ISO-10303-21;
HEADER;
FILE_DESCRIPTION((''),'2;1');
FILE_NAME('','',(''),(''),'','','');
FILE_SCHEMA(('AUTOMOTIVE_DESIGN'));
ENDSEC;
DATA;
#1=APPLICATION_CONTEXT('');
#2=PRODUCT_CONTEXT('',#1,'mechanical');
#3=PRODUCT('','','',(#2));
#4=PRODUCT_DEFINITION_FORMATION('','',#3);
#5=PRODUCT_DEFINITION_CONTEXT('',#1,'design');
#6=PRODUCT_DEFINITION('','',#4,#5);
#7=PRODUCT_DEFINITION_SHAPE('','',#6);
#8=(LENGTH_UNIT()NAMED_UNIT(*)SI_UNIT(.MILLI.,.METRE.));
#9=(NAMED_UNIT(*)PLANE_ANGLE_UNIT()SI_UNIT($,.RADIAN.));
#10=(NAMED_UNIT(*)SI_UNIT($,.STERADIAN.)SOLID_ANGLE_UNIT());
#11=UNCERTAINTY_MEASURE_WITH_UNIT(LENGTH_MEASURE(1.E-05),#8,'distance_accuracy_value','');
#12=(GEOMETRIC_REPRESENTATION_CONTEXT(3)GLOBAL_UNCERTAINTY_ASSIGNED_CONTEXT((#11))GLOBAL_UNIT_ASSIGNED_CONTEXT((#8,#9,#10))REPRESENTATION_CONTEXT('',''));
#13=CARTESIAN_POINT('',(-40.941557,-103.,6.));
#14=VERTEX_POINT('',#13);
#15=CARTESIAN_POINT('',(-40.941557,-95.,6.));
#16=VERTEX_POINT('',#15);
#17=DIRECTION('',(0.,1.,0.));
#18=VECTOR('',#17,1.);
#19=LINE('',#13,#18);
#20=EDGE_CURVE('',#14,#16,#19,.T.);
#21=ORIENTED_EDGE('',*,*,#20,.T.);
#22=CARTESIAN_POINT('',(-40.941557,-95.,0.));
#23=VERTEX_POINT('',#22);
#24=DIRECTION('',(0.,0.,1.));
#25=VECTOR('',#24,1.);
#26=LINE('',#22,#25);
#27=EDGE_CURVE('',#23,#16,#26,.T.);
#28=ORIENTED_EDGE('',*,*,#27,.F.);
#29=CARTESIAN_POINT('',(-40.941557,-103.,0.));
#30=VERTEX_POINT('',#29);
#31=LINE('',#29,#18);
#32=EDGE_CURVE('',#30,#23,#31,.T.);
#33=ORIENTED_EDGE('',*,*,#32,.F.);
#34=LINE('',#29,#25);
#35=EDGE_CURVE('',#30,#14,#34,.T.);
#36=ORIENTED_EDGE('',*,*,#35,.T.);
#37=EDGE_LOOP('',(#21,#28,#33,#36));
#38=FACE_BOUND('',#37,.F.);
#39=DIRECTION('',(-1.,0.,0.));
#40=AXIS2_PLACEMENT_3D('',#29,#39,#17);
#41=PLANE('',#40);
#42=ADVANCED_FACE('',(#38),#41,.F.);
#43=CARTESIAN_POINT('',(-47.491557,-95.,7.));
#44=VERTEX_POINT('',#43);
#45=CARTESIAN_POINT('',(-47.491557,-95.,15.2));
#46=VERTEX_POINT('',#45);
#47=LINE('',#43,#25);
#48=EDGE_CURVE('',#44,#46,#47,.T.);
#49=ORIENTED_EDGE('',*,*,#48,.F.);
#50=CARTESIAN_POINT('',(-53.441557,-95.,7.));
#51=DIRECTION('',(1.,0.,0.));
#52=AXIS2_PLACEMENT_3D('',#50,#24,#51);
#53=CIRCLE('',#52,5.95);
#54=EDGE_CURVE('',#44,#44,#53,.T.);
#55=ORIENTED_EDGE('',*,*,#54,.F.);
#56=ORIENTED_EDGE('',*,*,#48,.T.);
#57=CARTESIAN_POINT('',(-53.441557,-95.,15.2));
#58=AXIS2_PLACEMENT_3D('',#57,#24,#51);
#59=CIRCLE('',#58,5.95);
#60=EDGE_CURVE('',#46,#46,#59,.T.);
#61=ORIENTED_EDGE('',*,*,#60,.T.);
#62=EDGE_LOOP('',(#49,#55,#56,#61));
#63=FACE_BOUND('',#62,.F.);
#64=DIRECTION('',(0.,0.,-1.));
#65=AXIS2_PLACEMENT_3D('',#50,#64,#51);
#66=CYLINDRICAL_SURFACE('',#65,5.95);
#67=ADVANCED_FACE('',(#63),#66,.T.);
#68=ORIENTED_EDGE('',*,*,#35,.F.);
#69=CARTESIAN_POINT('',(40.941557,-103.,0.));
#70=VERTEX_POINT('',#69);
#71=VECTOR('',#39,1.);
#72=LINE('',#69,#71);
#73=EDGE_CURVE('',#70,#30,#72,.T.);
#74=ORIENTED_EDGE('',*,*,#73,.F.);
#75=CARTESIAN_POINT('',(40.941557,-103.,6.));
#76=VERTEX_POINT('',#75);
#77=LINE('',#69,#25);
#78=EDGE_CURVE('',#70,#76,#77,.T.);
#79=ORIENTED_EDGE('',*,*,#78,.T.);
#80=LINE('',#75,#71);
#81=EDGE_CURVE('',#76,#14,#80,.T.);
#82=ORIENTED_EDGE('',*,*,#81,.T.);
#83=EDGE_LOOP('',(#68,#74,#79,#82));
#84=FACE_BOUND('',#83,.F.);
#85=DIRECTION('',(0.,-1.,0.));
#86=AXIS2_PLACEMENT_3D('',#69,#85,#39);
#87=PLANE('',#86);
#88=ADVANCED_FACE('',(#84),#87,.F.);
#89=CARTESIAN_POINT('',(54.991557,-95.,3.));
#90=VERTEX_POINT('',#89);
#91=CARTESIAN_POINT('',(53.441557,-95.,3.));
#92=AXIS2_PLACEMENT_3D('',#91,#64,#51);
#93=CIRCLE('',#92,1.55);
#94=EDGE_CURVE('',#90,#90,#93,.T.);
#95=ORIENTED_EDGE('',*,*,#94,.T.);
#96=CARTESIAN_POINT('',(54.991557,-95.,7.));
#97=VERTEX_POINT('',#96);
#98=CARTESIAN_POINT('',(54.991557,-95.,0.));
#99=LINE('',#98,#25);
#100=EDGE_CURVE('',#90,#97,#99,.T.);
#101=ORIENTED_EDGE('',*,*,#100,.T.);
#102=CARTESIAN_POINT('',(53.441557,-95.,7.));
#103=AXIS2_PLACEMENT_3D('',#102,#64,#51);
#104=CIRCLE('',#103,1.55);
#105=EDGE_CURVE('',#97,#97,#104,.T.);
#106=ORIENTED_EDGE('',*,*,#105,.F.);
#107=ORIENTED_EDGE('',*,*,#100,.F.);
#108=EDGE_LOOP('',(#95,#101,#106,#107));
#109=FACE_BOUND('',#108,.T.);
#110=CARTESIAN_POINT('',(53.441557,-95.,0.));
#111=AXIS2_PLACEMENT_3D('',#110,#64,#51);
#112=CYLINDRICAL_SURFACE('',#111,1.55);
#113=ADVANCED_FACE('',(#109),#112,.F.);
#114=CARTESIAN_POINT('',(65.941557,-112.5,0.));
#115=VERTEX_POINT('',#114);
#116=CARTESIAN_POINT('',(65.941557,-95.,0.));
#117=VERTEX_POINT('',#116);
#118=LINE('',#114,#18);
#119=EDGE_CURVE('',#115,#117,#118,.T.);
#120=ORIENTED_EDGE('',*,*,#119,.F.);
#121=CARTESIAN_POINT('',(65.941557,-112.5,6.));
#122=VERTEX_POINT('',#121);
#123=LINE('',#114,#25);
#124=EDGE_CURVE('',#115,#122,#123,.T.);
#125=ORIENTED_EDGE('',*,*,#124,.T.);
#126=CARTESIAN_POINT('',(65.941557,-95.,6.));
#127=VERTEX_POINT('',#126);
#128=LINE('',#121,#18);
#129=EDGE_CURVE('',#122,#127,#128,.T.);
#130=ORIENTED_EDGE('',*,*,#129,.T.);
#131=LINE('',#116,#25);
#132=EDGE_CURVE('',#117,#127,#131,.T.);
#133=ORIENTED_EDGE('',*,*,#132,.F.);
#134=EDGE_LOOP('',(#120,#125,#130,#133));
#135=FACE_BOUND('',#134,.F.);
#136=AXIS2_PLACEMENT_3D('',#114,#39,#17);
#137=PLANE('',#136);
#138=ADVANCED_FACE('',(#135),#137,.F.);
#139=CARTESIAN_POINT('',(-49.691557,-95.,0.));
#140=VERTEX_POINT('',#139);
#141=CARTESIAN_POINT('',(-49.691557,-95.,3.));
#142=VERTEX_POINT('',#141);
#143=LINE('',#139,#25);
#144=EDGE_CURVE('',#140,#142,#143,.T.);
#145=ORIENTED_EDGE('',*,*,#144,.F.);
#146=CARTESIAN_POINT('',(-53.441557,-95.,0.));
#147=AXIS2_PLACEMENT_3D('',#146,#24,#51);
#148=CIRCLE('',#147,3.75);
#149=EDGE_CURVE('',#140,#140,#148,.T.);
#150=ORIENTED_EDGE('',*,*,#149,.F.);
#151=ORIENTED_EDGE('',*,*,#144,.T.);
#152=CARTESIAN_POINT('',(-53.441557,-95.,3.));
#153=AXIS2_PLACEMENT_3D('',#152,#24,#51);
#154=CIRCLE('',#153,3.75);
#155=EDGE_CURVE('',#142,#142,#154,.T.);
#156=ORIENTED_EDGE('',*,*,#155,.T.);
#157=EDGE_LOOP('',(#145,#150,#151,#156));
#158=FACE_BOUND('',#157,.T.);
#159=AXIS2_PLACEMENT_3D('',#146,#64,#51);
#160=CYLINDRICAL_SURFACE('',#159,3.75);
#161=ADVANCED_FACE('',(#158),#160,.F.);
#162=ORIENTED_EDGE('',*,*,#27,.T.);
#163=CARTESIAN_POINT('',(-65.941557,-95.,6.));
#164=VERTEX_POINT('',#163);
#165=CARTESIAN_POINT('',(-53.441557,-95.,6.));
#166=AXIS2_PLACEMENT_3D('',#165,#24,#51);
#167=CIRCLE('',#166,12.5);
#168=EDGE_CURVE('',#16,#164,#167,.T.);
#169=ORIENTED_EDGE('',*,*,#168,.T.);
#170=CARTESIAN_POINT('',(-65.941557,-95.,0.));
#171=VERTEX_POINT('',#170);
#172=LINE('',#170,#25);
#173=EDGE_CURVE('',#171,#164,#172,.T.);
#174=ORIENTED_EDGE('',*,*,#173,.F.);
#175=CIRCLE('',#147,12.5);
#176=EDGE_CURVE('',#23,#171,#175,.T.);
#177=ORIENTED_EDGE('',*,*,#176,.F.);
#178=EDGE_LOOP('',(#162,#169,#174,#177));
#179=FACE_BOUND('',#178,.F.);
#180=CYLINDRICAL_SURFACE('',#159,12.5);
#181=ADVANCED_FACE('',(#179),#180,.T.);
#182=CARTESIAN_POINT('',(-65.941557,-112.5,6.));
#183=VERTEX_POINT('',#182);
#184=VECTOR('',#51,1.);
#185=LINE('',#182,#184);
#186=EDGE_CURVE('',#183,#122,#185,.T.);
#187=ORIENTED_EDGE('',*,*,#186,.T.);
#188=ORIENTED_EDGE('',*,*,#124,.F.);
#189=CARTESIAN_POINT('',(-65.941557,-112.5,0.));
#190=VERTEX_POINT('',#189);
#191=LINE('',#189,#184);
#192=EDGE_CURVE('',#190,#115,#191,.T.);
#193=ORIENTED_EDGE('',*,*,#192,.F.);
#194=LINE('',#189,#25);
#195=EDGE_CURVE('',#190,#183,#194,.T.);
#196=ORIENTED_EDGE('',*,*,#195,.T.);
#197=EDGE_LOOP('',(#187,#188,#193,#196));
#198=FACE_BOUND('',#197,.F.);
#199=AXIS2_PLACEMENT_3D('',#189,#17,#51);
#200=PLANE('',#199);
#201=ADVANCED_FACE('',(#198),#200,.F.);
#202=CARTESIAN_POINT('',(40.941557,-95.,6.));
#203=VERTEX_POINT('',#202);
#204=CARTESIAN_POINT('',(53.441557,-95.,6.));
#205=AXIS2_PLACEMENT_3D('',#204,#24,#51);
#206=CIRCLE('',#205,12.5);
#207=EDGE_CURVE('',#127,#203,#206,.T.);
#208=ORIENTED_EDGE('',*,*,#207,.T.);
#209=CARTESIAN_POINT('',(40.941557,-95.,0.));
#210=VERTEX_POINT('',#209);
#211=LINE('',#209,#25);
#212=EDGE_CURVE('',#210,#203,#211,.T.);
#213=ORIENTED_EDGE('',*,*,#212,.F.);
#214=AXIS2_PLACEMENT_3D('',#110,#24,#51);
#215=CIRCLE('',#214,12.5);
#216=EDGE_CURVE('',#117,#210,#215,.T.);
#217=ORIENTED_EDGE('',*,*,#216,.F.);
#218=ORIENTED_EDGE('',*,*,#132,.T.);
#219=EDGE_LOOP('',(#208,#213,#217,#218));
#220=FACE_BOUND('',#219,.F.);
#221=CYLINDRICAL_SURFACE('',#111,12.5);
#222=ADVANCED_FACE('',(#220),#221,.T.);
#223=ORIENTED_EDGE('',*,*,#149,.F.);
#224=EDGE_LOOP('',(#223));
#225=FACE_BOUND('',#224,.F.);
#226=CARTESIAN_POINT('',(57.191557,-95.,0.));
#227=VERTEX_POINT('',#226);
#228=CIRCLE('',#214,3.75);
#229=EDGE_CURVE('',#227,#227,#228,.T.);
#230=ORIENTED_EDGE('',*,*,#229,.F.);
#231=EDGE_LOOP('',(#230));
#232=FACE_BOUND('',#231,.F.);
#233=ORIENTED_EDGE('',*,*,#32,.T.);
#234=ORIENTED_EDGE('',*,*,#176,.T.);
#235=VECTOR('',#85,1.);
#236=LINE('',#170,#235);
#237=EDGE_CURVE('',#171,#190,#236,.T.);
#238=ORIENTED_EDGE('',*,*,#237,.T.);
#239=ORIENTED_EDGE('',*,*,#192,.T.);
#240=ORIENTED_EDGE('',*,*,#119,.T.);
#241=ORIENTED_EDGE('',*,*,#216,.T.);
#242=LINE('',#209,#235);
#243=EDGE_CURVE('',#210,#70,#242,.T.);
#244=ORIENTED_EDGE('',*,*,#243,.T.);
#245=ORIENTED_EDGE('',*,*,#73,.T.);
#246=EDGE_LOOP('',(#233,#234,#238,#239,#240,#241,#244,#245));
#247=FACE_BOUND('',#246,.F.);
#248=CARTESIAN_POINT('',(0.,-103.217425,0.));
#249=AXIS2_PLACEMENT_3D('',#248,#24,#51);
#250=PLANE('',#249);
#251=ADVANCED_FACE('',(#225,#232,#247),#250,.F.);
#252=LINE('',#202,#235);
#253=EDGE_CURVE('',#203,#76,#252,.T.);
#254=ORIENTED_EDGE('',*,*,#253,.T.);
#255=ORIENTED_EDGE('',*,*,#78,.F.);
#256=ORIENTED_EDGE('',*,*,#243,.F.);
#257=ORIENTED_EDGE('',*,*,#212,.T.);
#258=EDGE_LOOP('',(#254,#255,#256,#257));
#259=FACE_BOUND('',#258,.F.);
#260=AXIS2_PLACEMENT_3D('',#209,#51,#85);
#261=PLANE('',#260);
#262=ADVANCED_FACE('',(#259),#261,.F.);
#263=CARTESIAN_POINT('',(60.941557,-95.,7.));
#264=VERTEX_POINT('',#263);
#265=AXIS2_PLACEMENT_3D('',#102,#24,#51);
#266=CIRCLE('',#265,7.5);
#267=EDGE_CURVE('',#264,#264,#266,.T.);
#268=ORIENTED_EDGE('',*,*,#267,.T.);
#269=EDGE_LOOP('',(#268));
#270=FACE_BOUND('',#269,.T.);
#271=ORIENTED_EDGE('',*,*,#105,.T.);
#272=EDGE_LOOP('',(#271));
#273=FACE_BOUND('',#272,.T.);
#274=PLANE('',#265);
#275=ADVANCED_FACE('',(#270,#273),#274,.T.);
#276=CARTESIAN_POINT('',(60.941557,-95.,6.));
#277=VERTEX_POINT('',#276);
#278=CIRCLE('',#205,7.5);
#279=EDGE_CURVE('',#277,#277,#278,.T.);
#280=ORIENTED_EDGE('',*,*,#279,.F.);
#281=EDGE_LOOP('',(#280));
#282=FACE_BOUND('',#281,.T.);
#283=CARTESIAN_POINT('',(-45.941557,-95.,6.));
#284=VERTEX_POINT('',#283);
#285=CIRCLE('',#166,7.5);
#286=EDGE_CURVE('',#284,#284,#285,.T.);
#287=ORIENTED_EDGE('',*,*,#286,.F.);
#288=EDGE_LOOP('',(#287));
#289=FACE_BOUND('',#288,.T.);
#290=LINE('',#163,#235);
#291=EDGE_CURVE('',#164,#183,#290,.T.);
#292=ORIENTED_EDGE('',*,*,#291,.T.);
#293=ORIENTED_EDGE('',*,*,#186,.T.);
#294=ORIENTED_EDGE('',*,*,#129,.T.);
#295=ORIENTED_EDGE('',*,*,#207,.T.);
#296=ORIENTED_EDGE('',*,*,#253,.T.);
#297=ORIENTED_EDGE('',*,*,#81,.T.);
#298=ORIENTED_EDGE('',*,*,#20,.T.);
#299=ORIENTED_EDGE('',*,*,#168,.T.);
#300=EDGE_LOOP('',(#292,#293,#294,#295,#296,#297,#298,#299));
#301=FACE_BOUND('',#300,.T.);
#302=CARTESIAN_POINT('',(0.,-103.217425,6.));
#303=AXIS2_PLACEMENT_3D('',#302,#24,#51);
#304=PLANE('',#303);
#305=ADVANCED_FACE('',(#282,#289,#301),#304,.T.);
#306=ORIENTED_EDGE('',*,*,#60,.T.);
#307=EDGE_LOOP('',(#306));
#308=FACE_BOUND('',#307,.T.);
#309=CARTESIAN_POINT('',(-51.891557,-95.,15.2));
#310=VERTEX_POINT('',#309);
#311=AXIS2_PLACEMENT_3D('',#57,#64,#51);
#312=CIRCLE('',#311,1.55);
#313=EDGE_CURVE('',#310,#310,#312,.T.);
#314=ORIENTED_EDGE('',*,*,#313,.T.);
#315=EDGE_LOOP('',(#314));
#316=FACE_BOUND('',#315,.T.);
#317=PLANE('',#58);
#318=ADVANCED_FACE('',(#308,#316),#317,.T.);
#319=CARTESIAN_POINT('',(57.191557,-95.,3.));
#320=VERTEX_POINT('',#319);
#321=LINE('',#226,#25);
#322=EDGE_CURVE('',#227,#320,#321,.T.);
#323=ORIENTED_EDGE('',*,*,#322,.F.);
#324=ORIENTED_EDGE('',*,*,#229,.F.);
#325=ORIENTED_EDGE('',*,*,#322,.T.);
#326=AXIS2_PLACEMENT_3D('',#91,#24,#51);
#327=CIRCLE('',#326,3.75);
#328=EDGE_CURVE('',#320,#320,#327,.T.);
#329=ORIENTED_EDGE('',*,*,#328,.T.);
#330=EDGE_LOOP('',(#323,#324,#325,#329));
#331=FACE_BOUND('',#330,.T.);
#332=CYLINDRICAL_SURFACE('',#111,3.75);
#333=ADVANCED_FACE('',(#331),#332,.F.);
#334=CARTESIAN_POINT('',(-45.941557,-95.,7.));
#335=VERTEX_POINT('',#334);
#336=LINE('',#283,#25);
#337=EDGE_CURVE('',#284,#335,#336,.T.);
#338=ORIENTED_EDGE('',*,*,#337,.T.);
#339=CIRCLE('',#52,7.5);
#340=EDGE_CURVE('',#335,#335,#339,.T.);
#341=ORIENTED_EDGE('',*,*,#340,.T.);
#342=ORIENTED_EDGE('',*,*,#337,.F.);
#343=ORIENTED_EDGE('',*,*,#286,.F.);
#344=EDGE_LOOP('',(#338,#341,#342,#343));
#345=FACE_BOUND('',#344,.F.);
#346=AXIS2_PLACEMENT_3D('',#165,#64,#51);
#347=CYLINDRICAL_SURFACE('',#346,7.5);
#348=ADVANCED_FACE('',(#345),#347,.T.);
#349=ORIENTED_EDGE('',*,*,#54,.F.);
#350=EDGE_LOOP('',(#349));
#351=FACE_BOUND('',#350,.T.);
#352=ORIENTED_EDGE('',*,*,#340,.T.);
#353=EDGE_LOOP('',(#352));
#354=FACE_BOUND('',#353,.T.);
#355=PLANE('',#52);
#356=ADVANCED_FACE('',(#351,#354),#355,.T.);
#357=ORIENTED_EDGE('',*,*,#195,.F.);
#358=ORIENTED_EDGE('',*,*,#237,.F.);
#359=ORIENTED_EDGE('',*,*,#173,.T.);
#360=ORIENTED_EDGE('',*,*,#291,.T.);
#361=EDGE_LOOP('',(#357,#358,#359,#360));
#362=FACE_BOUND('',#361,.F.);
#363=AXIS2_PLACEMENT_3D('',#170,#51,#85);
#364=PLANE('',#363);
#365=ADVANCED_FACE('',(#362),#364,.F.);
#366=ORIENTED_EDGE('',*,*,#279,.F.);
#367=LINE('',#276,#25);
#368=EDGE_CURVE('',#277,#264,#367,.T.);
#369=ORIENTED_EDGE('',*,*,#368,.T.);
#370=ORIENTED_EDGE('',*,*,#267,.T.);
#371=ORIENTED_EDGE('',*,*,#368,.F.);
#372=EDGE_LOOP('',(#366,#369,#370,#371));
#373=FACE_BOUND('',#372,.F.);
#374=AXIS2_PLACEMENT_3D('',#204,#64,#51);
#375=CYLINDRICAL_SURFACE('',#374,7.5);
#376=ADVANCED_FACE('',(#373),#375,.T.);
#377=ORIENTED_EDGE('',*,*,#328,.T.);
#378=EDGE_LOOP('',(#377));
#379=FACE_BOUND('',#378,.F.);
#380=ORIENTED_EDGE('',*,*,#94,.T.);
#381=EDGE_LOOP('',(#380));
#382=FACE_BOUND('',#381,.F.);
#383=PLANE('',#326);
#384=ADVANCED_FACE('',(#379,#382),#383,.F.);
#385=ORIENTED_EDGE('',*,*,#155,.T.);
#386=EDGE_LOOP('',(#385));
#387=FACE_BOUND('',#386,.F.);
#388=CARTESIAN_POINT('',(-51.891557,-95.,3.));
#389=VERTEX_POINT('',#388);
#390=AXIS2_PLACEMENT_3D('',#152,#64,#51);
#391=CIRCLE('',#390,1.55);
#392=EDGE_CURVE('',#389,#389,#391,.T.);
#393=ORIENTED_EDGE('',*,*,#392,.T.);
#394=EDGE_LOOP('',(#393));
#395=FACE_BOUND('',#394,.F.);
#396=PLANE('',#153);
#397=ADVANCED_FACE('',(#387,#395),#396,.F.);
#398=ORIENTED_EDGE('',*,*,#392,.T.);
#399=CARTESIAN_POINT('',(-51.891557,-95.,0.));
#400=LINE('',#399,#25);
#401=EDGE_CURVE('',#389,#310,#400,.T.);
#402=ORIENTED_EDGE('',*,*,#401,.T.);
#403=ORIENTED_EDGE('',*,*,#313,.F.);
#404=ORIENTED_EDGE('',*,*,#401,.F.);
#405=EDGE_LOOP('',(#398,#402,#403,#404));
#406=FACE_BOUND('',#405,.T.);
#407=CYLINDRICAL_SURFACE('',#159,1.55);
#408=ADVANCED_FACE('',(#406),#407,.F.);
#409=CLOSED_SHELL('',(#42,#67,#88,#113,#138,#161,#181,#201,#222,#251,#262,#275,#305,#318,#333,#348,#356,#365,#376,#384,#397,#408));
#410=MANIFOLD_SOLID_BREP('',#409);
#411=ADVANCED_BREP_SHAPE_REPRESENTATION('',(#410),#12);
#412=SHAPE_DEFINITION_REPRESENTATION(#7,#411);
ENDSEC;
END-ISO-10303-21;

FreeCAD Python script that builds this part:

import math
import FreeCAD as App
import Part
import Sketcher

doc = App.newDocument("Part")
body = doc.addObject("PartDesign::Body", "Body")

# Sketch on XY plane
sketch1 = doc.addObject("Sketcher::SketchObject", "Sketch")
body.addObject(sketch1)
sketch1.AttachmentSupport = (doc.XY_Plane, [""])
sketch1.MapMode = "FlatFace"
sketch1.addGeometry([
    Part.LineSegment(App.Vector(-41, -103, 0), App.Vector(-41, -95, 0)),  # 0
    Part.ArcOfCircle(Part.Circle(App.Vector(-53, -95, 0), App.Vector(0, 0, 1), 12), math.radians(0), math.radians(180)),  # 1
    Part.LineSegment(App.Vector(-66, -95, 0), App.Vector(-66, -112, 0)),  # 2
    Part.LineSegment(App.Vector(-66, -112, 0), App.Vector(66, -112, 0)),  # 3
    Part.LineSegment(App.Vector(66, -112, 0), App.Vector(66, -95, 0)),  # 4
    Part.ArcOfCircle(Part.Circle(App.Vector(53, -95, 0), App.Vector(0, 0, 1), 12), math.radians(0), math.radians(180)),  # 5
    Part.LineSegment(App.Vector(41, -95, 0), App.Vector(41, -103, 0)),  # 6
    Part.LineSegment(App.Vector(41, -103, 0), App.Vector(-41, -103, 0)),  # 7
], False)
sketch1.addConstraint([
    Sketcher.Constraint("Tangent", 0, 2, 1, 1),
    Sketcher.Constraint("Tangent", 1, 2, 2, 1),
    Sketcher.Constraint("Coincident", 2, 2, 3, 1),
    Sketcher.Constraint("Coincident", 3, 2, 4, 1),
    Sketcher.Constraint("Tangent", 4, 2, 5, 1),
    Sketcher.Constraint("Tangent", 5, 2, 6, 1),
    Sketcher.Constraint("Coincident", 6, 2, 7, 1),
    Sketcher.Constraint("Coincident", 7, 2, 0, 1),
    Sketcher.Constraint("Vertical", 0),
    Sketcher.Constraint("Vertical", 2),
    Sketcher.Constraint("Horizontal", 3),
    Sketcher.Constraint("Vertical", 4),
    Sketcher.Constraint("Vertical", 6),
    Sketcher.Constraint("Horizontal", 7),
    Sketcher.Constraint("Equal", 1, 5),
    Sketcher.Constraint("Symmetric", 1, 3, 5, 3, -2),
    Sketcher.Constraint("Radius", 1, 12.5),
    Sketcher.Constraint("DistanceY", 0, 1, 0, 2, 8.0),
    Sketcher.Constraint("DistanceY", 2, 2, 2, 1, 17.5),
    Sketcher.Constraint("DistanceY", 1, 3, -1, 1, 95.0),
    Sketcher.Constraint("DistanceX", 3, 1, 3, 2, 131.883114),
])
pad1 = doc.addObject("PartDesign::Pad", "Pad")
body.addObject(pad1)
pad1.Profile = sketch1
pad1.Length = 6

# Sketch on XY plane
sketch2 = doc.addObject("Sketcher::SketchObject", "Sketch001")
body.addObject(sketch2)
sketch2.AttachmentSupport = (doc.XY_Plane, [""])
sketch2.MapMode = "FlatFace"
sketch2.AttachmentOffset = App.Placement(App.Vector(0, 0, 6), App.Rotation())
sketch2.addGeometry([
    Part.Circle(App.Vector(-53, -95, 0), App.Vector(0, 0, 1), 8),
    Part.Circle(App.Vector(53, -95, 0), App.Vector(0, 0, 1), 8),
], False)
sketch2.addConstraint([
    Sketcher.Constraint("Equal", 0, 1),
    Sketcher.Constraint("Symmetric", 0, 3, 1, 3, -2),
    Sketcher.Constraint("Diameter", 0, 15.0),
    Sketcher.Constraint("DistanceY", 0, 3, -1, 1, 95.0),
    Sketcher.Constraint("DistanceX", 0, 3, -1, 1, 53.441557),
])
pad2 = doc.addObject("PartDesign::Pad", "Pad001")
body.addObject(pad2)
pad2.Profile = sketch2
pad2.Length = 1

# Sketch on XY plane
sketch3 = doc.addObject("Sketcher::SketchObject", "Sketch002")
body.addObject(sketch3)
sketch3.AttachmentSupport = (doc.XY_Plane, [""])
sketch3.MapMode = "FlatFace"
sketch3.AttachmentOffset = App.Placement(App.Vector(0, 0, 7), App.Rotation())
sketch3.addGeometry(Part.Circle(App.Vector(-53, -95, 0), App.Vector(0, 0, 1), 6), False)
sketch3.addConstraint([
    Sketcher.Constraint("Diameter", 0, 11.9),
    Sketcher.Constraint("DistanceY", 0, 3, -1, 1, 95.0),
    Sketcher.Constraint("DistanceX", 0, 3, -1, 1, 53.441557),
])
pad3 = doc.addObject("PartDesign::Pad", "Pad002")
body.addObject(pad3)
pad3.Profile = sketch3
pad3.Length = 8.2

# Sketch on XY plane
sketch4 = doc.addObject("Sketcher::SketchObject", "Sketch003")
body.addObject(sketch4)
sketch4.AttachmentSupport = (doc.XY_Plane, [""])
sketch4.MapMode = "FlatFace"
sketch4.addGeometry([
    Part.Circle(App.Vector(-53.4, -95, 0), App.Vector(0, 0, 1), 1.6),
    Part.Circle(App.Vector(53.4, -95, 0), App.Vector(0, 0, 1), 1.6),
], False)
sketch4.addConstraint([
    Sketcher.Constraint("Equal", 0, 1),
    Sketcher.Constraint("Symmetric", 0, 3, 1, 3, -2),
    Sketcher.Constraint("Diameter", 0, 3.1),
    Sketcher.Constraint("DistanceY", 0, 3, -1, 1, 95.0),
    Sketcher.Constraint("DistanceX", 0, 3, -1, 1, 53.441557),
])
pocket1 = doc.addObject("PartDesign::Pocket", "Pocket")
body.addObject(pocket1)
pocket1.Profile = sketch4
pocket1.Type = "ThroughAll"
pocket1.Reversed = True

# Sketch on XY plane
sketch5 = doc.addObject("Sketcher::SketchObject", "Sketch004")
body.addObject(sketch5)
sketch5.AttachmentSupport = (doc.XY_Plane, [""])
sketch5.MapMode = "FlatFace"
sketch5.addGeometry([
    Part.Circle(App.Vector(-53.4, -95, 0), App.Vector(0, 0, 1), 3.8),
    Part.Circle(App.Vector(53.4, -95, 0), App.Vector(0, 0, 1), 3.8),
], False)
sketch5.addConstraint([
    Sketcher.Constraint("Equal", 0, 1),
    Sketcher.Constraint("Symmetric", 0, 3, 1, 3, -2),
    Sketcher.Constraint("Diameter", 0, 7.5),
    Sketcher.Constraint("DistanceY", 0, 3, -1, 1, 95.0),
    Sketcher.Constraint("DistanceX", 0, 3, -1, 1, 53.441557),
])
pocket2 = doc.addObject("PartDesign::Pocket", "Pocket001")
body.addObject(pocket2)
pocket2.Profile = sketch5
pocket2.Length = 3
pocket2.Reversed = True

doc.recompute()
